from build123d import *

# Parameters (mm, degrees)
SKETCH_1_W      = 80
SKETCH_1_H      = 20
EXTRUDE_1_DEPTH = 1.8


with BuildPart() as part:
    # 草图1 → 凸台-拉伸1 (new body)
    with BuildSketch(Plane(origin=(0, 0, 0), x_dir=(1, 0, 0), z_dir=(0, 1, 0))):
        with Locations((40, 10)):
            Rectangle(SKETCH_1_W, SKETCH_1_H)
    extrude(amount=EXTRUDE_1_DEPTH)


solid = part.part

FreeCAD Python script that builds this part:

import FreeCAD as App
import Part
import Sketcher
Q = App.Units.Quantity


def add_polygon(sketch, points):
    """Adds a closed chain of lines whose ends are joined by coincident constraints."""
    first, n = sketch.GeometryCount, len(points)
    for a, b in zip(points, points[1:] + points[:1]):
        sketch.addGeometry(Part.LineSegment(App.Vector(*a, 0), App.Vector(*b, 0)), False)
    for i in range(n):
        sketch.addConstraint(Sketcher.Constraint("Coincident", first + i, 2, first + (i + 1) % n, 1))

doc = App.newDocument("Part")
body = doc.addObject("PartDesign::Body", "Body")

sketch1 = body.newObject("Sketcher::SketchObject", "Sketch")
sketch1.AttachmentSupport = (doc.getObject("XZ_Plane"), [""])
sketch1.MapMode = "FlatFace"
add_polygon(sketch1, [(0, -20), (0, 0), (80, 0), (80, -20)])
sketch1.addConstraint([
    Sketcher.Constraint("Vertical", 0),
    Sketcher.Constraint("Horizontal", 1),
    Sketcher.Constraint("Vertical", 2),
    Sketcher.Constraint("Horizontal", 3),
    Sketcher.Constraint("Coincident", 0, 2, -1, 1),
    Sketcher.Constraint("DistanceX", 1, 1, 1, 2, Q("80 mm")),
    Sketcher.Constraint("DistanceY", 0, 1, 0, 2, Q("20 mm")),
])
pad1 = body.newObject("PartDesign::Pad", "Pad")
pad1.Profile = sketch1
pad1.Length = 1.8
pad1.Reversed = True

doc.recompute()
